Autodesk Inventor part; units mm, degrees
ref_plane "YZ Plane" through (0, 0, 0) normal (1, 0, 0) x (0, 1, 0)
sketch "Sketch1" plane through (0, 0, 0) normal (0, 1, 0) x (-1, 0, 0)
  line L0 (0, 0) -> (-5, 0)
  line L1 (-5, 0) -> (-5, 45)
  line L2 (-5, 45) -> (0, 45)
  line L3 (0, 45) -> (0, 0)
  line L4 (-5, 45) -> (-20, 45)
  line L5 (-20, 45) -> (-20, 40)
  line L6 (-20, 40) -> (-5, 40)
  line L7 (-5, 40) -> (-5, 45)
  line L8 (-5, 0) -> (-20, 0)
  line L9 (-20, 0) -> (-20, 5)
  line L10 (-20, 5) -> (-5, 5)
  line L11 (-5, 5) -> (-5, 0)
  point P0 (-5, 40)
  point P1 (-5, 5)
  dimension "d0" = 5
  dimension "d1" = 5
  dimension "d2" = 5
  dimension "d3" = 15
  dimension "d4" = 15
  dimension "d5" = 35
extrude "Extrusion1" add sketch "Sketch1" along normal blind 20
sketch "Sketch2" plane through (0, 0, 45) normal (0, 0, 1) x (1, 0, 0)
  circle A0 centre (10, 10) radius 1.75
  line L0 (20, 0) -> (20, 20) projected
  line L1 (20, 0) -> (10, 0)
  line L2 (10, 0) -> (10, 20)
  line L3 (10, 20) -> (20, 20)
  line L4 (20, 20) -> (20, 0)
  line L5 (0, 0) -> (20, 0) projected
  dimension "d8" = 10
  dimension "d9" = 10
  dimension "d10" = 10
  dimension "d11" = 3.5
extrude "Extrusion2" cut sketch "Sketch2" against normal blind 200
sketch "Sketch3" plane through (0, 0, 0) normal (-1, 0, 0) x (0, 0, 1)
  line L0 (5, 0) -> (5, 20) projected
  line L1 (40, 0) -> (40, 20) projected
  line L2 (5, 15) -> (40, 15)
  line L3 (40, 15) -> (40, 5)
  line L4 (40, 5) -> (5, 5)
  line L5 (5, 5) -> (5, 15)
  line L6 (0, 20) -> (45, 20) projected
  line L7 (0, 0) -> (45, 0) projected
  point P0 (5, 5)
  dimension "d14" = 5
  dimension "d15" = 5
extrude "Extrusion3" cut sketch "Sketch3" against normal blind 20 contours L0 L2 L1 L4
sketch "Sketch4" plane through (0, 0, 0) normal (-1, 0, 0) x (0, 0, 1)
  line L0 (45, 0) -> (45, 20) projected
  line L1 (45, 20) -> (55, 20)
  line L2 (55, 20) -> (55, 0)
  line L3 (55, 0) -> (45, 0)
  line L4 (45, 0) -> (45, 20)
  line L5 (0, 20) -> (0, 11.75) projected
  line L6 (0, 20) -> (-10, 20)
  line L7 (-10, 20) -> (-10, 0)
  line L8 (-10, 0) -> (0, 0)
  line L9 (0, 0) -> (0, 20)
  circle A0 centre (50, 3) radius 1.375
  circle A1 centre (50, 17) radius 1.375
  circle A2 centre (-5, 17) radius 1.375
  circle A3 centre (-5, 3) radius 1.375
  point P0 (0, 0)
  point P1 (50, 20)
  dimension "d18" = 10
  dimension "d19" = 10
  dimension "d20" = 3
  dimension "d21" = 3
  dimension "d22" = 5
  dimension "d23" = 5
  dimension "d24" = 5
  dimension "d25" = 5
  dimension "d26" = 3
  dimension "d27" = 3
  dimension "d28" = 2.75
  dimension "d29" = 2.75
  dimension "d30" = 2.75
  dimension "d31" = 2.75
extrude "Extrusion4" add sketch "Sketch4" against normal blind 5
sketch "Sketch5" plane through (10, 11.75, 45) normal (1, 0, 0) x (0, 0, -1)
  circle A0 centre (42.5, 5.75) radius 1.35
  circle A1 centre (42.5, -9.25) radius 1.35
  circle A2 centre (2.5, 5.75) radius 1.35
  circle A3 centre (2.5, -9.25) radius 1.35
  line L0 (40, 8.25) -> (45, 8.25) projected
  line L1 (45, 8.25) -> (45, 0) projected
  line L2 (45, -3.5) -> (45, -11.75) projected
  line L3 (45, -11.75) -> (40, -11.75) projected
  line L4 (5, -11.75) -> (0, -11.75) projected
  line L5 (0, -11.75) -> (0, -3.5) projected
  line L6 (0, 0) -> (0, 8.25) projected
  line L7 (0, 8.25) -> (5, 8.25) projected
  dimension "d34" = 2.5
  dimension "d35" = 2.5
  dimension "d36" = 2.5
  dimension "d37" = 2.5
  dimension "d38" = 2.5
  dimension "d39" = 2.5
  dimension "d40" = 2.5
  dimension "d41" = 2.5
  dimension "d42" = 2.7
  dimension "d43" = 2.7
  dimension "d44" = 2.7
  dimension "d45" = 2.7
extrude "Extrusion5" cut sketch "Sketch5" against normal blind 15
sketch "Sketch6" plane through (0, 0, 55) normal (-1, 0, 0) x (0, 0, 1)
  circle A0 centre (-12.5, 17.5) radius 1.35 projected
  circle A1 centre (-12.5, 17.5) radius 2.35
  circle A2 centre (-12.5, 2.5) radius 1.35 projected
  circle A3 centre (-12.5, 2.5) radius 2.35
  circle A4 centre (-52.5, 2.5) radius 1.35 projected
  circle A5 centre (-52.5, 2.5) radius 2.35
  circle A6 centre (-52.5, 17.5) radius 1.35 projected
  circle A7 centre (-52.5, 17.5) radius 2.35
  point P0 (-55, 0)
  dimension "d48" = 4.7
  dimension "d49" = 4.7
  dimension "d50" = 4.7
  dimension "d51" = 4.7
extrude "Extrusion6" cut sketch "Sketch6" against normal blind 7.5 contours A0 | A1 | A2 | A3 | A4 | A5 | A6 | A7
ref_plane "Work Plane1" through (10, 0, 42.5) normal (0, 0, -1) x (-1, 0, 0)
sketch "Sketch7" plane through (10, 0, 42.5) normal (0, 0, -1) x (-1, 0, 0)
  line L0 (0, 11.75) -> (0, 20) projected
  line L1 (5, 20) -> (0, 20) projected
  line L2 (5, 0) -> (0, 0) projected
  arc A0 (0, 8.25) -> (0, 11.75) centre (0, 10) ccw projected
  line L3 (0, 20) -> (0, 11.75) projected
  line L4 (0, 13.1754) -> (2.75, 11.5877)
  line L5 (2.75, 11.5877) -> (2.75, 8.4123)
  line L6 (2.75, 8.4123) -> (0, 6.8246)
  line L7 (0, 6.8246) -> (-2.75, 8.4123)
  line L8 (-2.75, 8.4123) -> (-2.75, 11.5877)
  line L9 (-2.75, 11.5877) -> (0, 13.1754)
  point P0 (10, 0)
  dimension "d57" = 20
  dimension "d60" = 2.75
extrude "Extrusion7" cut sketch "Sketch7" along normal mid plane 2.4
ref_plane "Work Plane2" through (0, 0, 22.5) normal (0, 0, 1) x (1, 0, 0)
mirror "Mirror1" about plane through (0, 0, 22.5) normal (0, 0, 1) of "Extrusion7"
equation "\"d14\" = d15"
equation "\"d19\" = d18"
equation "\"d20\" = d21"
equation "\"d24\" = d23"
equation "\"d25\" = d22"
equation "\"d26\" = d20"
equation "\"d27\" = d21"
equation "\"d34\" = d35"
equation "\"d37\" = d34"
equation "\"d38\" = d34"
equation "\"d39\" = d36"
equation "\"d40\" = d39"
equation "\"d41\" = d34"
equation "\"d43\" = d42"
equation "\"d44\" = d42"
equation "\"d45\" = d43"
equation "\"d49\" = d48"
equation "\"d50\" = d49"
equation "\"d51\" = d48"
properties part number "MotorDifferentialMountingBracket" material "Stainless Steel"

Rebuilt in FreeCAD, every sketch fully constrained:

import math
import FreeCAD as App
import Part
import Sketcher

V = App.Vector
Q = App.Units.Quantity


def add_polygon(sketch, points):
    """Adds a closed chain of lines whose ends are joined by coincident constraints."""
    first, n = sketch.GeometryCount, len(points)
    for a, b in zip(points, points[1:] + points[:1]):
        sketch.addGeometry(Part.LineSegment(App.Vector(*a, 0), App.Vector(*b, 0)), False)
    for i in range(n):
        sketch.addConstraint(Sketcher.Constraint("Coincident", first + i, 2, first + (i + 1) % n, 1))

doc = App.newDocument("Part")
body = doc.addObject("PartDesign::Body", "Body")

sketch1 = body.newObject("Sketcher::SketchObject", "Sketch")
sketch1.AttachmentSupport = (doc.getObject("XZ_Plane"), [""])
sketch1.MapMode = "FlatFace"
add_polygon(sketch1, [(0, 0), (0, 45), (20, 45), (20, 40), (5, 40), (5, 5), (20, 5), (20, 0)])
sketch1.addConstraint([
    Sketcher.Constraint("Vertical", 0),
    Sketcher.Constraint("Horizontal", 1),
    Sketcher.Constraint("Vertical", 2),
    Sketcher.Constraint("Horizontal", 3),
    Sketcher.Constraint("Vertical", 4),
    Sketcher.Constraint("Horizontal", 5),
    Sketcher.Constraint("Vertical", 6),
    Sketcher.Constraint("Horizontal", 7),
    Sketcher.Constraint("Coincident", 7, 2, -1, 1),
    Sketcher.Constraint("Vertical", 2, 2, 5, 2),
    Sketcher.Constraint("Equal", 2, 6),
    Sketcher.Constraint("DistanceX", 3, 2, 3, 1, Q("15 mm")),
    Sketcher.Constraint("DistanceY", 2, 2, 2, 1, Q("5 mm")),
    Sketcher.Constraint("DistanceY", 4, 2, 4, 1, Q("35 mm")),
    Sketcher.Constraint("DistanceX", -1, 1, 3, 2, Q("5 mm")),
])
pad1 = body.newObject("PartDesign::Pad", "Pad")
pad1.Profile = sketch1
pad1.Length = 20
pad1.Reversed = True

sketch2 = body.newObject("Sketcher::SketchObject", "Sketch001")
sketch2.AttachmentSupport = (doc.getObject("XY_Plane"), [""])
sketch2.MapMode = "FlatFace"
sketch2.AttachmentOffset = App.Placement(V(0, 0, 45), App.Rotation())
sketch2.addGeometry([
    Part.LineSegment(V(10, 8.2, 0), V(10, 0, 0)),
    Part.LineSegment(V(10, 0, 0), V(20, 0, 0)),
    Part.LineSegment(V(20, 0, 0), V(20, 20, 0)),
    Part.LineSegment(V(20, 20, 0), V(10, 20, 0)),
    Part.LineSegment(V(10, 20, 0), V(10, 11.8, 0)),
    Part.ArcOfCircle(Part.Circle(V(10, 10, 0), V(0, 0, 1), 1.8), math.radians(90), math.radians(270)),
], False)
sketch2.addConstraint([
    Sketcher.Constraint("Coincident", 0, 2, 1, 1),
    Sketcher.Constraint("Coincident", 1, 2, 2, 1),
    Sketcher.Constraint("Coincident", 2, 2, 3, 1),
    Sketcher.Constraint("Coincident", 3, 2, 4, 1),
    Sketcher.Constraint("Coincident", 4, 2, 5, 1),
    Sketcher.Constraint("Coincident", 5, 2, 0, 1),
    Sketcher.Constraint("Vertical", 0),
    Sketcher.Constraint("Horizontal", 1),
    Sketcher.Constraint("Vertical", 2),
    Sketcher.Constraint("Horizontal", 3),
    Sketcher.Constraint("Vertical", 4),
    Sketcher.Constraint("PointOnObject", 0, 2, -1),
    Sketcher.Constraint("Vertical", 5, 3, 0, 2),
    Sketcher.Constraint("Vertical", 0, 2, 3, 2),
    Sketcher.Constraint("Equal", 0, 4),
    Sketcher.Constraint("DistanceX", 1, 1, 1, 2, Q("10 mm")),
    Sketcher.Constraint("Radius", 5, Q("1.75 mm")),
    Sketcher.Constraint("DistanceX", -1, 1, 5, 3, Q("10 mm")),
    Sketcher.Constraint("DistanceY", -1, 1, 5, 3, Q("10 mm")),
])
pocket1 = body.newObject("PartDesign::Pocket", "Pocket")
pocket1.Profile = sketch2
pocket1.Length = 200

sketch3 = body.newObject("Sketcher::SketchObject", "Sketch002")
sketch3.AttachmentSupport = (doc.getObject("YZ_Plane"), [""])
sketch3.MapMode = "FlatFace"
add_polygon(sketch3, [(15, 5), (5, 5), (5, 40), (15, 40)])
sketch3.addConstraint([
    Sketcher.Constraint("Horizontal", 0),
    Sketcher.Constraint("Vertical", 1),
    Sketcher.Constraint("Horizontal", 2),
    Sketcher.Constraint("Vertical", 3),
    Sketcher.Constraint("DistanceX", -1, 1, 0, 2, Q("5 mm")),
    Sketcher.Constraint("DistanceY", -1, 1, 0, 2, Q("5 mm")),
    Sketcher.Constraint("DistanceX", 0, 2, 0, 1, Q("10 mm")),
    Sketcher.Constraint("DistanceY", 1, 1, 1, 2, Q("35 mm")),
])
pocket2 = body.newObject("PartDesign::Pocket", "Pocket001")
pocket2.Profile = sketch3
pocket2.Length = 20
pocket2.Reversed = True

sketch4 = body.newObject("Sketcher::SketchObject", "Sketch003")
sketch4.AttachmentSupport = (doc.getObject("YZ_Plane"), [""])
sketch4.MapMode = "FlatFace"
add_polygon(sketch4, [(20, 45), (0, 45), (0, 55), (20, 55)])
sketch4.addGeometry(Part.Circle(V(3, 50, 0), V(0, 0, 1), 1.4), False)
sketch4.addGeometry(Part.Circle(V(17, 50, 0), V(0, 0, 1), 1.4), False)
add_polygon(sketch4, [(0, 0), (20, 0), (20, -10), (0, -10)])
sketch4.addGeometry(Part.Circle(V(3, -5, 0), V(0, 0, 1), 1.4), False)
sketch4.addGeometry(Part.Circle(V(17, -5, 0), V(0, 0, 1), 1.4), False)
sketch4.addConstraint([
    Sketcher.Constraint("Horizontal", 0),
    Sketcher.Constraint("Vertical", 1),
    Sketcher.Constraint("Horizontal", 2),
    Sketcher.Constraint("Vertical", 3),
    Sketcher.Constraint("Horizontal", 6),
    Sketcher.Constraint("Vertical", 7),
    Sketcher.Constraint("Horizontal", 8),
    Sketcher.Constraint("Vertical", 9),
    Sketcher.Constraint("Coincident", 9, 2, -1, 1),
    Sketcher.Constraint("Equal", 4, 5),
    Sketcher.Constraint("Equal", 5, 10),
    Sketcher.Constraint("Equal", 10, 11),
    Sketcher.Constraint("PointOnObject", 0, 2, -2),
    Sketcher.Constraint("Horizontal", 4, 3, 5, 3),
    Sketcher.Constraint("Horizontal", 10, 3, 11, 3),
    Sketcher.Constraint("Vertical", 4, 3, 10, 3),
    Sketcher.Constraint("Vertical", 5, 3, 11, 3),
    Sketcher.Constraint("Vertical", 3, 2, 6, 2),
    Sketcher.Constraint("Equal", 3, 7),
    Sketcher.Constraint("Diameter", 4, Q("2.75 mm")),
    Sketcher.Constraint("DistanceY", 1, 1, 1, 2, Q("10 mm")),
    Sketcher.Constraint("DistanceX", -1, 1, 4, 3, Q("3 mm")),
    Sketcher.Constraint("DistanceY", 10, 3, -1, 1, Q("5 mm")),
    Sketcher.Constraint("DistanceY", 0, 2, 4, 3, Q("5 mm")),
    Sketcher.Constraint("DistanceX", 5, 3, 2, 2, Q("3 mm")),
    Sketcher.Constraint("DistanceX", 0, 2, 0, 1, Q("20 mm")),
    Sketcher.Constraint("DistanceY", -1, 1, 4, 3, Q("50 mm")),
])
pad2 = body.newObject("PartDesign::Pad", "Pad001")
pad2.Profile = sketch4
pad2.Length = 5

sketch5 = body.newObject("Sketcher::SketchObject", "Sketch004")
sketch5.AttachmentSupport = (doc.getObject("YZ_Plane"), [""])
sketch5.MapMode = "FlatFace"
sketch5.AttachmentOffset = App.Placement(V(0, 0, 10), App.Rotation())
sketch5.addGeometry([
    Part.Circle(V(17.5, 2.5, 0), V(0, 0, 1), 1.4),
    Part.Circle(V(2.5, 2.5, 0), V(0, 0, 1), 1.4),
    Part.Circle(V(17.5, 42.5, 0), V(0, 0, 1), 1.4),
    Part.Circle(V(2.5, 42.5, 0), V(0, 0, 1), 1.4),
], False)
sketch5.addConstraint([
    Sketcher.Constraint("Equal", 0, 1),
    Sketcher.Constraint("Equal", 1, 2),
    Sketcher.Constraint("Equal", 2, 3),
    Sketcher.Constraint("Horizontal", 0, 3, 1, 3),
    Sketcher.Constraint("Horizontal", 2, 3, 3, 3),
    Sketcher.Constraint("Vertical", 0, 3, 2, 3),
    Sketcher.Constraint("Vertical", 1, 3, 3, 3),
    Sketcher.Constraint("Diameter", 0, Q("2.7 mm")),
    Sketcher.Constraint("DistanceY", -1, 1, 0, 3, Q("2.5 mm")),
    Sketcher.Constraint("DistanceX", -1, 1, 1, 3, Q("2.5 mm")),
    Sketcher.Constraint("DistanceX", 1, 3, 0, 3, Q("15 mm")),
    Sketcher.Constraint("DistanceY", 0, 3, 2, 3, Q("40 mm")),
])
pocket3 = body.newObject("PartDesign::Pocket", "Pocket002")
pocket3.Profile = sketch5
pocket3.Length = 15

sketch6 = body.newObject("Sketcher::SketchObject", "Sketch005")
sketch6.AttachmentSupport = (doc.getObject("YZ_Plane"), [""])
sketch6.MapMode = "FlatFace"
sketch6.addGeometry([
    Part.Circle(V(17.5, 42.5, 0), V(0, 0, 1), 2.4),
    Part.Circle(V(2.5, 42.5, 0), V(0, 0, 1), 2.4),
    Part.Circle(V(2.5, 2.5, 0), V(0, 0, 1), 2.4),
    Part.Circle(V(17.5, 2.5, 0), V(0, 0, 1), 2.4),
], False)
sketch6.addConstraint([
    Sketcher.Constraint("Equal", 0, 1),
    Sketcher.Constraint("Equal", 1, 2),
    Sketcher.Constraint("Equal", 2, 3),
    Sketcher.Constraint("Horizontal", 0, 3, 1, 3),
    Sketcher.Constraint("Horizontal", 2, 3, 3, 3),
    Sketcher.Constraint("Vertical", 1, 3, 2, 3),
    Sketcher.Constraint("Vertical", 0, 3, 3, 3),
    Sketcher.Constraint("Diameter", 0, Q("4.7 mm")),
    Sketcher.Constraint("DistanceX", 1, 3, 0, 3, Q("15 mm")),
    Sketcher.Constraint("DistanceY", 2, 3, 1, 3, Q("40 mm")),
    Sketcher.Constraint("DistanceX", -1, 1, 0, 3, Q("17.5 mm")),
    Sketcher.Constraint("DistanceY", -1, 1, 0, 3, Q("42.5 mm")),
])
pocket4 = body.newObject("PartDesign::Pocket", "Pocket003")
pocket4.Profile = sketch6
pocket4.Length = 7.5
pocket4.Reversed = True

sketch7 = body.newObject("Sketcher::SketchObject", "Sketch006")
sketch7.AttachmentSupport = (doc.getObject("XY_Plane"), [""])
sketch7.MapMode = "FlatFace"
sketch7.AttachmentOffset = App.Placement(V(0, 0, 42.5), App.Rotation())
add_polygon(sketch7, [(7.2, 11.6), (10, 13.2), (12.8, 11.6), (12.8, 8.4), (10, 6.8), (7.2, 8.4)])
sketch7.addConstraint([
    Sketcher.Constraint("Vertical", 2),
    Sketcher.Constraint("Vertical", 5),
    Sketcher.Constraint("Parallel", 0, 3),
    Sketcher.Constraint("Parallel", 1, 4),
    Sketcher.Constraint("Horizontal", 2, 2, 4, 2),
    Sketcher.Constraint("Horizontal", 1, 2, 5, 2),
    Sketcher.Constraint("Vertical", 0, 2, 3, 2),
    Sketcher.Constraint("Angle", 0, Q("29.9998 deg")),
    Sketcher.Constraint("DistanceX", 0, 2, 1, 2, Q("2.75 mm")),
    Sketcher.Constraint("DistanceX", -1, 1, 0, 2, Q("10 mm")),
    Sketcher.Constraint("DistanceY", 2, 2, 2, 1, Q("3.1754 mm")),
    Sketcher.Constraint("DistanceY", -1, 1, 0, 2, Q("13.1754 mm")),
])
pocket5 = body.newObject("PartDesign::Pocket", "Pocket004")
pocket5.Profile = sketch7
pocket5.Length = 2.4
pocket5.Midplane = True
doc.recompute()

datumplane = body.newObject("PartDesign::Plane", "DatumPlane")
datumplane.AttachmentSupport = (doc.getObject("XY_Plane"), [""])
datumplane.MapMode = "FlatFace"
datumplane.AttachmentOffset = App.Placement(V(0, 0, 22.5), App.Rotation())
mirrored = body.newObject("PartDesign::Mirrored", "Mirrored")
mirrored.Originals = [pocket5]
mirrored.MirrorPlane = (datumplane, [""])
body.Tip = mirrored

doc.recompute()
